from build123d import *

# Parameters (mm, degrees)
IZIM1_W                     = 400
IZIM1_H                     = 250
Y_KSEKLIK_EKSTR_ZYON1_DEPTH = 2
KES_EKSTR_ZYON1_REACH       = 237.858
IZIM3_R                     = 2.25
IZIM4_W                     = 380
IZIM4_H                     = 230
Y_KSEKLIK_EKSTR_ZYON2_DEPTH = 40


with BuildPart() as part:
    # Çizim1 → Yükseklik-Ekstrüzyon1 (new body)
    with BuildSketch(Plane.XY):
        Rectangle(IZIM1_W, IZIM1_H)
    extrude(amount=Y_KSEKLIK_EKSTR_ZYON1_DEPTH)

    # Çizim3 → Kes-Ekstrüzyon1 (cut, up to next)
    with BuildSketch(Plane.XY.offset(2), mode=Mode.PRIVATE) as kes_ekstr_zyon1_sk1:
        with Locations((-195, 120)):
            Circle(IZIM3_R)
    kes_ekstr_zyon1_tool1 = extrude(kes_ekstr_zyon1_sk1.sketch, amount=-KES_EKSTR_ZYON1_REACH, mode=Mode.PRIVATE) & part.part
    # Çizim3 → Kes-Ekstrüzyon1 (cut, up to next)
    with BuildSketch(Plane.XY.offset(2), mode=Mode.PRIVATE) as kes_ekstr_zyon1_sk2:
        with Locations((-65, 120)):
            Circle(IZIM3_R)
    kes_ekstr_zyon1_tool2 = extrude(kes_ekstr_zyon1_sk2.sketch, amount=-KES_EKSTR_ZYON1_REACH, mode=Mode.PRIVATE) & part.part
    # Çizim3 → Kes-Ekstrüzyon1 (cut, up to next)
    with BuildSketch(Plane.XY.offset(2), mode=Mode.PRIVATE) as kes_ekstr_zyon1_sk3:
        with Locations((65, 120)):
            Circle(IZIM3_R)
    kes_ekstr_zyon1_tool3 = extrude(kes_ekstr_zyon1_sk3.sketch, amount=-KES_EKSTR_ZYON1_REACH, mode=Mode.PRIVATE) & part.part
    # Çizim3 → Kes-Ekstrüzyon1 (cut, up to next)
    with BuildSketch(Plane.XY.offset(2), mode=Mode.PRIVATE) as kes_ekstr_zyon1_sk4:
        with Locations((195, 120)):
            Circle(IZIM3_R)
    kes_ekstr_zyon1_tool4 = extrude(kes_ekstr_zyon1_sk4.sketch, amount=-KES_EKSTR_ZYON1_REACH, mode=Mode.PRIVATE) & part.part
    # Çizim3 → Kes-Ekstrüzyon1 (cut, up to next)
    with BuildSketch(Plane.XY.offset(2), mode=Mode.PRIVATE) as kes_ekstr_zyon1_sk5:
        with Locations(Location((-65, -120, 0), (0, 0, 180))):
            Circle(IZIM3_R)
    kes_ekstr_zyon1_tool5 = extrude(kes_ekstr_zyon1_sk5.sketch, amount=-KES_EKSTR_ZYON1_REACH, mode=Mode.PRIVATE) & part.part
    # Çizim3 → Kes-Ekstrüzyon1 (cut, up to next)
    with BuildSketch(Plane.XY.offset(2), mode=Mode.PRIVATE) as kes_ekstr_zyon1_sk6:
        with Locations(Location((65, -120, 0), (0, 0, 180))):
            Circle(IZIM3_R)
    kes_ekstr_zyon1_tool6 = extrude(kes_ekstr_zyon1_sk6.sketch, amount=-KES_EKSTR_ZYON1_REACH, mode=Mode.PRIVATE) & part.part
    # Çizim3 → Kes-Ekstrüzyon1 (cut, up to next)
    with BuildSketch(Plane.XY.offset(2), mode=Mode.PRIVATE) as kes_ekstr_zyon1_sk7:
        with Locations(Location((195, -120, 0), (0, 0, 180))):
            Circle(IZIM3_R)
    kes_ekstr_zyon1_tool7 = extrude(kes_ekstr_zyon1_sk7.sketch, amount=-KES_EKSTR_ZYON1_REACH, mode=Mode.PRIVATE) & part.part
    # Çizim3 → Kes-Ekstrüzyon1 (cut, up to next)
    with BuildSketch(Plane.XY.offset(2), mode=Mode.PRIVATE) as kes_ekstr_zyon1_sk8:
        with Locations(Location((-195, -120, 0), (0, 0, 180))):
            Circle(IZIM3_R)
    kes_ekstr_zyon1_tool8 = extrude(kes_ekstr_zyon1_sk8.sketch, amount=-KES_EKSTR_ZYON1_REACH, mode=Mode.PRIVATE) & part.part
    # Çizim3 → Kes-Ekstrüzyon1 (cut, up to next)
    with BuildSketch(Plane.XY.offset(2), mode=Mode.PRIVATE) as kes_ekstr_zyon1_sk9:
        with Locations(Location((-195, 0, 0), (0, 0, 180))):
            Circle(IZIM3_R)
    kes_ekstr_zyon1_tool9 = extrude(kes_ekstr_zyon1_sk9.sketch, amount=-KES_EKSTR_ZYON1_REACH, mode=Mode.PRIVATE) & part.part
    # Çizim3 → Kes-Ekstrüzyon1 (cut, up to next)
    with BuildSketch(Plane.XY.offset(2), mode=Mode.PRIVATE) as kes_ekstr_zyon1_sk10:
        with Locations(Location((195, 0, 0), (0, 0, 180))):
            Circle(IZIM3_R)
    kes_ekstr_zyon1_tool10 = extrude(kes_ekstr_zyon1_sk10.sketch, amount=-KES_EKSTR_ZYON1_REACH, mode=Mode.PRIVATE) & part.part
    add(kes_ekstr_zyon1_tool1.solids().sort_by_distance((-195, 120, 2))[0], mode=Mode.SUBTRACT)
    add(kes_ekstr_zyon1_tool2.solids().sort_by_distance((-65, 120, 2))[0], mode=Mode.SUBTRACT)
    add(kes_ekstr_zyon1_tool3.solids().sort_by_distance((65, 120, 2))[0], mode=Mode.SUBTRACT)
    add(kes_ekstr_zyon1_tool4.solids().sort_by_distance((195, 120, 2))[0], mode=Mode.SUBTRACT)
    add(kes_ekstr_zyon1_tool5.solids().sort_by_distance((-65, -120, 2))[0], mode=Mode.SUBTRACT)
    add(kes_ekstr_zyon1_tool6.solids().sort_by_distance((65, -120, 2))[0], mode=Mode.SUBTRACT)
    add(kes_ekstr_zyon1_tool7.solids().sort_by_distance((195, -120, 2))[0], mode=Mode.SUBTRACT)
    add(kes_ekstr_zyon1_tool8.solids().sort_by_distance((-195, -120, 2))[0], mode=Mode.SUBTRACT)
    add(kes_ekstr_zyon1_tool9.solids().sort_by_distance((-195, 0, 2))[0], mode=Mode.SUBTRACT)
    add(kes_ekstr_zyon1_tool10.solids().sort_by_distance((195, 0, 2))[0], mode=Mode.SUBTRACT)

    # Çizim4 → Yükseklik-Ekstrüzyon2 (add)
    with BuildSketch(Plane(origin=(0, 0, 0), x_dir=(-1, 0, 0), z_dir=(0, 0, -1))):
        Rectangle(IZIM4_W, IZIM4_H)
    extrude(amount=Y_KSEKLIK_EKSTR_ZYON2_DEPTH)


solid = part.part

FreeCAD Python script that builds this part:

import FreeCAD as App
import Part
import Sketcher

V = App.Vector
Q = App.Units.Quantity

doc = App.newDocument("Part")
body = doc.addObject("PartDesign::Body", "Body")

# Sketch on XY plane
sketch1 = body.newObject("Sketcher::SketchObject", "Sketch")
sketch1.AttachmentSupport = (doc.getObject("XY_Plane"), [""])
sketch1.MapMode = "FlatFace"
sketch1.addGeometry(Part.LineSegment(V(-200, 125, 0), V(-200, -125, 0)), False)
sketch1.addGeometry(Part.LineSegment(V(-200, -125, 0), V(200, -125, 0)), False)
sketch1.addGeometry(Part.LineSegment(V(200, -125, 0), V(200, 125, 0)), False)
sketch1.addGeometry(Part.LineSegment(V(200, 125, 0), V(-200, 125, 0)), False)
sketch1.addConstraint(Sketcher.Constraint("Coincident", 0, 2, 1, 1))
sketch1.addConstraint(Sketcher.Constraint("Coincident", 1, 2, 2, 1))
sketch1.addConstraint(Sketcher.Constraint("Coincident", 2, 2, 3, 1))
sketch1.addConstraint(Sketcher.Constraint("Coincident", 3, 2, 0, 1))
sketch1.addConstraint(Sketcher.Constraint("Vertical", 0))
sketch1.addConstraint(Sketcher.Constraint("Horizontal", 1))
sketch1.addConstraint(Sketcher.Constraint("Vertical", 2))
sketch1.addConstraint(Sketcher.Constraint("Horizontal", 3))
sketch1.addConstraint(Sketcher.Constraint("Symmetric", 0, 2, 2, 2, -1, 1))
sketch1.addConstraint(Sketcher.Constraint("DistanceX", 1, 1, 1, 2, Q("400 mm")))
sketch1.addConstraint(Sketcher.Constraint("DistanceY", 0, 2, 0, 1, Q("250 mm")))
pad1 = body.newObject("PartDesign::Pad", "Pad")
pad1.Profile = sketch1
pad1.Length = 2

# Sketch on XY plane
sketch2 = body.newObject("Sketcher::SketchObject", "Sketch001")
sketch2.AttachmentSupport = (doc.getObject("XY_Plane"), [""])
sketch2.MapMode = "FlatFace"
sketch2.AttachmentOffset = App.Placement(V(0, 0, 2), App.Rotation())
sketch2.addGeometry(Part.Circle(V(-195, 120, 0), V(0, 0, 1), 2.2), False)
sketch2.addConstraint(Sketcher.Constraint("Diameter", 0, Q("4.5 mm")))
sketch2.addConstraint(Sketcher.Constraint("DistanceX", 0, 3, -1, 1, Q("195 mm")))
sketch2.addConstraint(Sketcher.Constraint("DistanceY", -1, 1, 0, 3, Q("120 mm")))
pocket1 = body.newObject("PartDesign::Pocket", "Pocket")
pocket1.Profile = sketch2
pocket1.Type = "UpToFirst"

# Sketch on XY plane
sketch3 = body.newObject("Sketcher::SketchObject", "Sketch002")
sketch3.AttachmentSupport = (doc.getObject("XY_Plane"), [""])
sketch3.MapMode = "FlatFace"
sketch3.AttachmentOffset = App.Placement(V(0, 0, 2), App.Rotation())
sketch3.addGeometry(Part.Circle(V(-65, 120, 0), V(0, 0, 1), 2.2), False)
sketch3.addConstraint(Sketcher.Constraint("Diameter", 0, Q("4.5 mm")))
sketch3.addConstraint(Sketcher.Constraint("DistanceX", 0, 3, -1, 1, Q("65 mm")))
sketch3.addConstraint(Sketcher.Constraint("DistanceY", -1, 1, 0, 3, Q("120 mm")))
pocket2 = body.newObject("PartDesign::Pocket", "Pocket001")
pocket2.Profile = sketch3
pocket2.Type = "UpToFirst"

# Sketch on XY plane
sketch4 = body.newObject("Sketcher::SketchObject", "Sketch003")
sketch4.AttachmentSupport = (doc.getObject("XY_Plane"), [""])
sketch4.MapMode = "FlatFace"
sketch4.AttachmentOffset = App.Placement(V(0, 0, 2), App.Rotation())
sketch4.addGeometry(Part.Circle(V(65, 120, 0), V(0, 0, 1), 2.2), False)
sketch4.addConstraint(Sketcher.Constraint("Diameter", 0, Q("4.5 mm")))
sketch4.addConstraint(Sketcher.Constraint("DistanceX", -1, 1, 0, 3, Q("65 mm")))
sketch4.addConstraint(Sketcher.Constraint("DistanceY", -1, 1, 0, 3, Q("120 mm")))
pocket3 = body.newObject("PartDesign::Pocket", "Pocket002")
pocket3.Profile = sketch4
pocket3.Type = "UpToFirst"

# Sketch on XY plane
sketch5 = body.newObject("Sketcher::SketchObject", "Sketch004")
sketch5.AttachmentSupport = (doc.getObject("XY_Plane"), [""])
sketch5.MapMode = "FlatFace"
sketch5.AttachmentOffset = App.Placement(V(0, 0, 2), App.Rotation())
sketch5.addGeometry(Part.Circle(V(195, 120, 0), V(0, 0, 1), 2.2), False)
sketch5.addConstraint(Sketcher.Constraint("Diameter", 0, Q("4.5 mm")))
sketch5.addConstraint(Sketcher.Constraint("DistanceX", -1, 1, 0, 3, Q("195 mm")))
sketch5.addConstraint(Sketcher.Constraint("DistanceY", -1, 1, 0, 3, Q("120 mm")))
pocket4 = body.newObject("PartDesign::Pocket", "Pocket003")
pocket4.Profile = sketch5
pocket4.Type = "UpToFirst"

# Sketch on XY plane
sketch6 = body.newObject("Sketcher::SketchObject", "Sketch005")
sketch6.AttachmentSupport = (doc.getObject("XY_Plane"), [""])
sketch6.MapMode = "FlatFace"
sketch6.AttachmentOffset = App.Placement(V(0, 0, 2), App.Rotation())
sketch6.addGeometry(Part.Circle(V(-65, -120, 0), V(0, 0, 1), 2.2), False)
sketch6.addConstraint(Sketcher.Constraint("Diameter", 0, Q("4.5 mm")))
sketch6.addConstraint(Sketcher.Constraint("DistanceX", 0, 3, -1, 1, Q("65 mm")))
sketch6.addConstraint(Sketcher.Constraint("DistanceY", 0, 3, -1, 1, Q("120 mm")))
pocket5 = body.newObject("PartDesign::Pocket", "Pocket004")
pocket5.Profile = sketch6
pocket5.Type = "UpToFirst"

# Sketch on XY plane
sketch7 = body.newObject("Sketcher::SketchObject", "Sketch006")
sketch7.AttachmentSupport = (doc.getObject("XY_Plane"), [""])
sketch7.MapMode = "FlatFace"
sketch7.AttachmentOffset = App.Placement(V(0, 0, 2), App.Rotation())
sketch7.addGeometry(Part.Circle(V(65, -120, 0), V(0, 0, 1), 2.2), False)
sketch7.addConstraint(Sketcher.Constraint("Diameter", 0, Q("4.5 mm")))
sketch7.addConstraint(Sketcher.Constraint("DistanceX", -1, 1, 0, 3, Q("65 mm")))
sketch7.addConstraint(Sketcher.Constraint("DistanceY", 0, 3, -1, 1, Q("120 mm")))
pocket6 = body.newObject("PartDesign::Pocket", "Pocket005")
pocket6.Profile = sketch7
pocket6.Type = "UpToFirst"

# Sketch on XY plane
sketch8 = body.newObject("Sketcher::SketchObject", "Sketch007")
sketch8.AttachmentSupport = (doc.getObject("XY_Plane"), [""])
sketch8.MapMode = "FlatFace"
sketch8.AttachmentOffset = App.Placement(V(0, 0, 2), App.Rotation())
sketch8.addGeometry(Part.Circle(V(195, -120, 0), V(0, 0, 1), 2.2), False)
sketch8.addConstraint(Sketcher.Constraint("Diameter", 0, Q("4.5 mm")))
sketch8.addConstraint(Sketcher.Constraint("DistanceX", -1, 1, 0, 3, Q("195 mm")))
sketch8.addConstraint(Sketcher.Constraint("DistanceY", 0, 3, -1, 1, Q("120 mm")))
pocket7 = body.newObject("PartDesign::Pocket", "Pocket006")
pocket7.Profile = sketch8
pocket7.Type = "UpToFirst"

# Sketch on XY plane
sketch9 = body.newObject("Sketcher::SketchObject", "Sketch008")
sketch9.AttachmentSupport = (doc.getObject("XY_Plane"), [""])
sketch9.MapMode = "FlatFace"
sketch9.AttachmentOffset = App.Placement(V(0, 0, 2), App.Rotation())
sketch9.addGeometry(Part.Circle(V(-195, -120, 0), V(0, 0, 1), 2.2), False)
sketch9.addConstraint(Sketcher.Constraint("Diameter", 0, Q("4.5 mm")))
sketch9.addConstraint(Sketcher.Constraint("DistanceX", 0, 3, -1, 1, Q("195 mm")))
sketch9.addConstraint(Sketcher.Constraint("DistanceY", 0, 3, -1, 1, Q("120 mm")))
pocket8 = body.newObject("PartDesign::Pocket", "Pocket007")
pocket8.Profile = sketch9
pocket8.Type = "UpToFirst"

# Sketch on XY plane
sketch10 = body.newObject("Sketcher::SketchObject", "Sketch009")
sketch10.AttachmentSupport = (doc.getObject("XY_Plane"), [""])
sketch10.MapMode = "FlatFace"
sketch10.AttachmentOffset = App.Placement(V(0, 0, 2), App.Rotation())
sketch10.addGeometry(Part.Circle(V(-195, 0, 0), V(0, 0, 1), 2.2), False)
sketch10.addConstraint(Sketcher.Constraint("PointOnObject", 0, 3, -1))
sketch10.addConstraint(Sketcher.Constraint("Diameter", 0, Q("4.5 mm")))
sketch10.addConstraint(Sketcher.Constraint("DistanceX", 0, 3, -1, 1, Q("195 mm")))
pocket9 = body.newObject("PartDesign::Pocket", "Pocket008")
pocket9.Profile = sketch10
pocket9.Type = "UpToFirst"

# Sketch on XY plane
sketch11 = body.newObject("Sketcher::SketchObject", "Sketch010")
sketch11.AttachmentSupport = (doc.getObject("XY_Plane"), [""])
sketch11.MapMode = "FlatFace"
sketch11.AttachmentOffset = App.Placement(V(0, 0, 2), App.Rotation())
sketch11.addGeometry(Part.Circle(V(195, 0, 0), V(0, 0, 1), 2.2), False)
sketch11.addConstraint(Sketcher.Constraint("PointOnObject", 0, 3, -1))
sketch11.addConstraint(Sketcher.Constraint("Diameter", 0, Q("4.5 mm")))
sketch11.addConstraint(Sketcher.Constraint("DistanceX", -1, 1, 0, 3, Q("195 mm")))
pocket10 = body.newObject("PartDesign::Pocket", "Pocket009")
pocket10.Profile = sketch11
pocket10.Type = "UpToFirst"

# Sketch on XY plane
sketch12 = body.newObject("Sketcher::SketchObject", "Sketch011")
sketch12.AttachmentSupport = (doc.getObject("XY_Plane"), [""])
sketch12.MapMode = "FlatFace"
sketch12.addGeometry(Part.LineSegment(V(190, 115, 0), V(190, -115, 0)), False)
sketch12.addGeometry(Part.LineSegment(V(190, -115, 0), V(-190, -115, 0)), False)
sketch12.addGeometry(Part.LineSegment(V(-190, -115, 0), V(-190, 115, 0)), False)
sketch12.addGeometry(Part.LineSegment(V(-190, 115, 0), V(190, 115, 0)), False)
sketch12.addConstraint(Sketcher.Constraint("Coincident", 0, 2, 1, 1))
sketch12.addConstraint(Sketcher.Constraint("Coincident", 1, 2, 2, 1))
sketch12.addConstraint(Sketcher.Constraint("Coincident", 2, 2, 3, 1))
sketch12.addConstraint(Sketcher.Constraint("Coincident", 3, 2, 0, 1))
sketch12.addConstraint(Sketcher.Constraint("Vertical", 0))
sketch12.addConstraint(Sketcher.Constraint("Horizontal", 1))
sketch12.addConstraint(Sketcher.Constraint("Vertical", 2))
sketch12.addConstraint(Sketcher.Constraint("Horizontal", 3))
sketch12.addConstraint(Sketcher.Constraint("Symmetric", 0, 2, 2, 2, -1, 1))
sketch12.addConstraint(Sketcher.Constraint("DistanceX", 1, 2, 1, 1, Q("380 mm")))
sketch12.addConstraint(Sketcher.Constraint("DistanceY", 0, 2, 0, 1, Q("230 mm")))
pad2 = body.newObject("PartDesign::Pad", "Pad001")
pad2.Profile = sketch12
pad2.Length = 40
pad2.Reversed = True

doc.recompute()
